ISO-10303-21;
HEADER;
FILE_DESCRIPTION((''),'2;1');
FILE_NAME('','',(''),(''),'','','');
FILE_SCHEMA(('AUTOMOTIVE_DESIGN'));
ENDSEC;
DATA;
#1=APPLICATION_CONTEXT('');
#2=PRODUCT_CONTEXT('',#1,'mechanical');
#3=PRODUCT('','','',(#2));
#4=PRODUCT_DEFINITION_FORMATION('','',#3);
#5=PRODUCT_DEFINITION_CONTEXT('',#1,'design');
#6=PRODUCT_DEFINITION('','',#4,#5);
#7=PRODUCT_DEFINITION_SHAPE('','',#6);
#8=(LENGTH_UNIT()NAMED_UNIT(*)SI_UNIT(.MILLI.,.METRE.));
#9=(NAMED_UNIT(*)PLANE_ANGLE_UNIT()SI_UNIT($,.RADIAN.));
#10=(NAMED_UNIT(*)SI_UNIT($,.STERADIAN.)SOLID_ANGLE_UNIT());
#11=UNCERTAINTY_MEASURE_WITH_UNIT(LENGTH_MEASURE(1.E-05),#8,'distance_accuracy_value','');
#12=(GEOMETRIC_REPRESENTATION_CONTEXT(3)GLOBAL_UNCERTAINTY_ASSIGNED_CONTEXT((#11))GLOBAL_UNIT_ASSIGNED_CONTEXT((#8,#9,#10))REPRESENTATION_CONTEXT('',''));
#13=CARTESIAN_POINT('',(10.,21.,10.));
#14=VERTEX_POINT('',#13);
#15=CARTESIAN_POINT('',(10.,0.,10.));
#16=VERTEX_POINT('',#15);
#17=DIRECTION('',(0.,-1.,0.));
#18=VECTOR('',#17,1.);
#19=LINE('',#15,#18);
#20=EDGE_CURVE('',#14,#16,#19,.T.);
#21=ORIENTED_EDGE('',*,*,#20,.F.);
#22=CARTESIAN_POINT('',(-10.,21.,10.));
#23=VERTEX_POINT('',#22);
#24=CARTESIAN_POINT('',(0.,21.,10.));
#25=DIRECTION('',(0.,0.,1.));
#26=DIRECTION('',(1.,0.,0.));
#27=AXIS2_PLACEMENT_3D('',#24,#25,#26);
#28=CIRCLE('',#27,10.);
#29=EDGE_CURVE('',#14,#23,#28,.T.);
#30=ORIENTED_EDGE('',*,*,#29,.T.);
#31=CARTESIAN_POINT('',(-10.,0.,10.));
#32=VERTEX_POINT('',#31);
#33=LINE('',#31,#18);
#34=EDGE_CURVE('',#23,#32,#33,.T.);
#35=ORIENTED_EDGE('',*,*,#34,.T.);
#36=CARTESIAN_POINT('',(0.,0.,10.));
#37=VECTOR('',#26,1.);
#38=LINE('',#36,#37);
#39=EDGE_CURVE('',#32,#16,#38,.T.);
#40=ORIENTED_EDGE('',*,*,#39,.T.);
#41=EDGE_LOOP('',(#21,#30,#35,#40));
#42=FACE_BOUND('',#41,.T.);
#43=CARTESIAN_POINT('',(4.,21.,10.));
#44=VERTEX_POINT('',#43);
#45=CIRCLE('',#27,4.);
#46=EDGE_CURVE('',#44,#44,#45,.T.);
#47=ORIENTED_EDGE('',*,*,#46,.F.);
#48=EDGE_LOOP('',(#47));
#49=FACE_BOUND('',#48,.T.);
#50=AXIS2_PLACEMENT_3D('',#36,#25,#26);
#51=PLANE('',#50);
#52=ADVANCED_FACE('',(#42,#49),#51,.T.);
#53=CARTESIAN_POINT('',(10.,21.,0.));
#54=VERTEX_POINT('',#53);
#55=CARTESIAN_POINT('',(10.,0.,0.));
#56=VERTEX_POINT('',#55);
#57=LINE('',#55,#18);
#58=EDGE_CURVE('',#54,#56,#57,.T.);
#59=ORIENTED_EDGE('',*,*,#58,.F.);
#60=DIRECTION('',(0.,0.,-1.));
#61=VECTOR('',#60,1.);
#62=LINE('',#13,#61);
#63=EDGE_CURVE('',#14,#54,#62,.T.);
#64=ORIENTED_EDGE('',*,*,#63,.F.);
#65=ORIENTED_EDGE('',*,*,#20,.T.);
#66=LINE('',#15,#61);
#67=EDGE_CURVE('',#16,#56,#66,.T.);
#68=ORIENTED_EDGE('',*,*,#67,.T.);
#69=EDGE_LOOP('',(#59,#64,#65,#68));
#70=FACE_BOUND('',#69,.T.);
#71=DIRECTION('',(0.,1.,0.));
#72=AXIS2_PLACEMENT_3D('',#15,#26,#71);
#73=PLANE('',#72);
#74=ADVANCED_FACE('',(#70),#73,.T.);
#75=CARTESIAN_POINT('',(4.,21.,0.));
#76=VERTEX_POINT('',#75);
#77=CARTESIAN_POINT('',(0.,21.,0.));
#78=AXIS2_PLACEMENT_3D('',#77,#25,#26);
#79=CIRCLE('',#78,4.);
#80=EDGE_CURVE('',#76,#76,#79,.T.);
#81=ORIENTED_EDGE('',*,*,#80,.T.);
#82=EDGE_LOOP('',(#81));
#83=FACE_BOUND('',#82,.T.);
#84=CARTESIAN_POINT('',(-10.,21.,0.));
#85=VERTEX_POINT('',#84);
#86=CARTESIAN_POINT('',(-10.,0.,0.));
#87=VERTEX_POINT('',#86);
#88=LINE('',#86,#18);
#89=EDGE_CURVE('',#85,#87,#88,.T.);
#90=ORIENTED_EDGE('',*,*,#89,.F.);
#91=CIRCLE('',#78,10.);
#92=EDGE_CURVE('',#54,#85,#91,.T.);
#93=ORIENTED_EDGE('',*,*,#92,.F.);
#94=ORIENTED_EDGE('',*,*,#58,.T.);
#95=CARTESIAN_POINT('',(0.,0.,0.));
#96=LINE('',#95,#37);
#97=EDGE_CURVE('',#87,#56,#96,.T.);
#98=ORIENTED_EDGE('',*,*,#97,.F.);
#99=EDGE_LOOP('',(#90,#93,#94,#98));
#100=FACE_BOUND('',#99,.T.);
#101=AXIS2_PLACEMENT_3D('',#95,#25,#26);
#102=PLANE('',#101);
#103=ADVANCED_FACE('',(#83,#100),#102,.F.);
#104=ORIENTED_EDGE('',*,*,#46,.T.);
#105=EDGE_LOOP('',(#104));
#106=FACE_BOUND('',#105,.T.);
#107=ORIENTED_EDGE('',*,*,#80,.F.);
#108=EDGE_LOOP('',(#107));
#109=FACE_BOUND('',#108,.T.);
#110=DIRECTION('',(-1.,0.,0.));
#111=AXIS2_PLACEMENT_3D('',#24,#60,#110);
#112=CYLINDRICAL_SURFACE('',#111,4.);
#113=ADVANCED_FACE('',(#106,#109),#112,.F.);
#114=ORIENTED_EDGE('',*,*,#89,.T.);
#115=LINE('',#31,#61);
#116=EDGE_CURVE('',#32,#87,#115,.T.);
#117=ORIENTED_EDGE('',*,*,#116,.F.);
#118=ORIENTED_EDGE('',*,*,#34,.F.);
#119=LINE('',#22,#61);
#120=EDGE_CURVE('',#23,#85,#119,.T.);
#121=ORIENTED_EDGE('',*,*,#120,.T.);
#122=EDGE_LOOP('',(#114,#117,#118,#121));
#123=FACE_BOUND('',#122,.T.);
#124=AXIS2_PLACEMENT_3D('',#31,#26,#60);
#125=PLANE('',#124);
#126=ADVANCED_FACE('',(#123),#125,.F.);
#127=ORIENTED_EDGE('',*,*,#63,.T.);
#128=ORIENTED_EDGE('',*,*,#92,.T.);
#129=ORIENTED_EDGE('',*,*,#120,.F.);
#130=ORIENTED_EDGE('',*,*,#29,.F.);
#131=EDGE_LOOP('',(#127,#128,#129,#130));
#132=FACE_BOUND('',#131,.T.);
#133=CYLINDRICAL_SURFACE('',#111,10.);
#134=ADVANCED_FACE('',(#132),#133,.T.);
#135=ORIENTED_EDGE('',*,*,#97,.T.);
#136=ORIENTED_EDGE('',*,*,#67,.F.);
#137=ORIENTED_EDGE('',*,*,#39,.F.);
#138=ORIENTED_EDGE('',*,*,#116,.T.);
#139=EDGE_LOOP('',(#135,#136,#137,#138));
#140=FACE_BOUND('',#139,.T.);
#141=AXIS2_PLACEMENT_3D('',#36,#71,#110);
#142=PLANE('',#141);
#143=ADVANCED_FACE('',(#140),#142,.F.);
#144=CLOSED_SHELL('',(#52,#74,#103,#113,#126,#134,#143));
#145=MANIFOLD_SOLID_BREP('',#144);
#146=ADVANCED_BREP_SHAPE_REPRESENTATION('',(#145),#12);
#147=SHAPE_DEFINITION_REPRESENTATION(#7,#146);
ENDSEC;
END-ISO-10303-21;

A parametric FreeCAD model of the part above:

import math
import FreeCAD as App
import Part
import Sketcher
from FreeCAD import Vector
Q = App.Units.Quantity

doc = App.newDocument("Part")
body = doc.addObject("PartDesign::Body", "Body")

# Sketch on XY plane
sketch1 = doc.addObject("Sketcher::SketchObject", "Sketch")
body.addObject(sketch1)
sketch1.AttachmentSupport = (doc.XY_Plane, [""])
sketch1.MapMode = "FlatFace"
sketch1.addGeometry(Part.ArcOfCircle(Part.Circle(Vector(0, 21, 0), Vector(0, 0, 1), 10), math.radians(0), math.radians(180)), False)
sketch1.addGeometry(Part.LineSegment(Vector(-10, 21, 0), Vector(-10, 0, 0)), False)
sketch1.addGeometry(Part.LineSegment(Vector(-10, 0, 0), Vector(10, 0, 0)), False)
sketch1.addGeometry(Part.LineSegment(Vector(10, 0, 0), Vector(10, 21, 0)), False)
sketch1.addGeometry(Part.ArcOfCircle(Part.Circle(Vector(0, 21, 0), Vector(0, 0, 1), 4), math.radians(-90), math.radians(0)), False)
sketch1.addGeometry(Part.ArcOfCircle(Part.Circle(Vector(0, 21, 0), Vector(0, 0, 1), 4), math.radians(180), math.radians(270)), False)
sketch1.addGeometry(Part.ArcOfCircle(Part.Circle(Vector(0, 21, 0), Vector(0, 0, 1), 4), math.radians(0), math.radians(180)), False)
sketch1.addConstraint(Sketcher.Constraint("Tangent", 0, 2, 1, 1))
sketch1.addConstraint(Sketcher.Constraint("Coincident", 1, 2, 2, 1))
sketch1.addConstraint(Sketcher.Constraint("Coincident", 2, 2, 3, 1))
sketch1.addConstraint(Sketcher.Constraint("Tangent", 3, 2, 0, 1))
sketch1.addConstraint(Sketcher.Constraint("Tangent", 4, 1, 5, 2))
sketch1.addConstraint(Sketcher.Constraint("Tangent", 5, 1, 6, 2))
sketch1.addConstraint(Sketcher.Constraint("Tangent", 6, 1, 4, 2))
sketch1.addConstraint(Sketcher.Constraint("Vertical", 1))
sketch1.addConstraint(Sketcher.Constraint("Horizontal", 2))
sketch1.addConstraint(Sketcher.Constraint("Vertical", 3))
sketch1.addConstraint(Sketcher.Constraint("Coincident", 4, 3, 0, 3))
sketch1.addConstraint(Sketcher.Constraint("Symmetric", 1, 2, 2, 2, -1, 1))
sketch1.addConstraint(Sketcher.Constraint("PointOnObject", 4, 1, -2))
sketch1.addConstraint(Sketcher.Constraint("Horizontal", 3, 2, 5, 1))
sketch1.addConstraint(Sketcher.Constraint("Horizontal", 5, 1, 6, 1))
sketch1.addConstraint(Sketcher.Constraint("Radius", 0, Q("10 mm")))
sketch1.addConstraint(Sketcher.Constraint("Radius", 4, Q("4 mm")))
sketch1.addConstraint(Sketcher.Constraint("DistanceY", 1, 2, 1, 1, Q("21 mm")))
pad1 = doc.addObject("PartDesign::Pad", "Pad")
body.addObject(pad1)
pad1.Profile = sketch1
pad1.Length = 10

doc.recompute()
